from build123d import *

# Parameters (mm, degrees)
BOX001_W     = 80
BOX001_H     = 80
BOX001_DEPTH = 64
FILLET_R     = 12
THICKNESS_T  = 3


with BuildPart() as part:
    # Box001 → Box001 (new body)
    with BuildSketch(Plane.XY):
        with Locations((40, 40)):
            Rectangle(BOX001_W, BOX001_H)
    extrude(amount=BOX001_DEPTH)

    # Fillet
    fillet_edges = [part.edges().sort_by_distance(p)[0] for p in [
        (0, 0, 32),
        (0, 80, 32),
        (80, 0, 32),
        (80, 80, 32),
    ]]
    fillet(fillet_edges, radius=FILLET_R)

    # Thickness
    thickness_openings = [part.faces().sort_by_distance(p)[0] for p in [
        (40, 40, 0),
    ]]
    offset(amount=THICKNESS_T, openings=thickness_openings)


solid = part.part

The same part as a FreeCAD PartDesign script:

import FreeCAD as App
import Part
import Sketcher
Q = App.Units.Quantity


def edges_at(feature, points):
    """Names of the edges that pass closest to the given points."""
    edges = feature.Shape.Edges
    near = lambda p: min(range(len(edges)), key=lambda i: edges[i].distToShape(Part.Vertex(*p))[0])
    return sorted({f"Edge{near(p) + 1}" for p in points})


def faces_at(feature, points):
    """Names of the faces that lie closest to the given points."""
    faces = feature.Shape.Faces
    near = lambda p: min(range(len(faces)), key=lambda i: faces[i].distToShape(Part.Vertex(*p))[0])
    return sorted({f"Face{near(p) + 1}" for p in points})

doc = App.newDocument("Part")
body = doc.addObject("PartDesign::Body", "Body")

# Sketch on XY plane
sketch1 = body.newObject("Sketcher::SketchObject", "Sketch")
sketch1.AttachmentSupport = (doc.getObject("XY_Plane"), [""])
sketch1.MapMode = "FlatFace"
sketch1.addGeometry([
    Part.LineSegment(App.Vector(0, 80, 0), App.Vector(0, 0, 0)),
    Part.LineSegment(App.Vector(0, 0, 0), App.Vector(80, 0, 0)),
    Part.LineSegment(App.Vector(80, 0, 0), App.Vector(80, 80, 0)),
    Part.LineSegment(App.Vector(80, 80, 0), App.Vector(0, 80, 0)),
], False)
sketch1.addConstraint([
    Sketcher.Constraint("Coincident", 0, 2, 1, 1),
    Sketcher.Constraint("Coincident", 1, 2, 2, 1),
    Sketcher.Constraint("Coincident", 2, 2, 3, 1),
    Sketcher.Constraint("Coincident", 3, 2, 0, 1),
    Sketcher.Constraint("Vertical", 0),
    Sketcher.Constraint("Horizontal", 1),
    Sketcher.Constraint("Vertical", 2),
    Sketcher.Constraint("Horizontal", 3),
    Sketcher.Constraint("Coincident", 0, 2, -1, 1),
    Sketcher.Constraint("Equal", 3, 0),
    Sketcher.Constraint("DistanceX", 1, 1, 1, 2, Q("80 mm")),
])
pad1 = body.newObject("PartDesign::Pad", "Pad")
pad1.Profile = sketch1
pad1.Length = 64
doc.recompute()

fillet = body.newObject("PartDesign::Fillet", "Fillet")
fillet.Base = (pad1, edges_at(pad1, [
    (0, 0, 32),
    (0, 80, 32),
    (80, 0, 32),
    (80, 80, 32),
]))
fillet.Radius = 12
doc.recompute()

thickness = body.newObject("PartDesign::Thickness", "Thickness")
thickness.Base = (fillet, faces_at(fillet, [(40, 40, 0)]))
thickness.Value = 3
thickness.Reversed = False
thickness.Join = "Arc"

doc.recompute()
